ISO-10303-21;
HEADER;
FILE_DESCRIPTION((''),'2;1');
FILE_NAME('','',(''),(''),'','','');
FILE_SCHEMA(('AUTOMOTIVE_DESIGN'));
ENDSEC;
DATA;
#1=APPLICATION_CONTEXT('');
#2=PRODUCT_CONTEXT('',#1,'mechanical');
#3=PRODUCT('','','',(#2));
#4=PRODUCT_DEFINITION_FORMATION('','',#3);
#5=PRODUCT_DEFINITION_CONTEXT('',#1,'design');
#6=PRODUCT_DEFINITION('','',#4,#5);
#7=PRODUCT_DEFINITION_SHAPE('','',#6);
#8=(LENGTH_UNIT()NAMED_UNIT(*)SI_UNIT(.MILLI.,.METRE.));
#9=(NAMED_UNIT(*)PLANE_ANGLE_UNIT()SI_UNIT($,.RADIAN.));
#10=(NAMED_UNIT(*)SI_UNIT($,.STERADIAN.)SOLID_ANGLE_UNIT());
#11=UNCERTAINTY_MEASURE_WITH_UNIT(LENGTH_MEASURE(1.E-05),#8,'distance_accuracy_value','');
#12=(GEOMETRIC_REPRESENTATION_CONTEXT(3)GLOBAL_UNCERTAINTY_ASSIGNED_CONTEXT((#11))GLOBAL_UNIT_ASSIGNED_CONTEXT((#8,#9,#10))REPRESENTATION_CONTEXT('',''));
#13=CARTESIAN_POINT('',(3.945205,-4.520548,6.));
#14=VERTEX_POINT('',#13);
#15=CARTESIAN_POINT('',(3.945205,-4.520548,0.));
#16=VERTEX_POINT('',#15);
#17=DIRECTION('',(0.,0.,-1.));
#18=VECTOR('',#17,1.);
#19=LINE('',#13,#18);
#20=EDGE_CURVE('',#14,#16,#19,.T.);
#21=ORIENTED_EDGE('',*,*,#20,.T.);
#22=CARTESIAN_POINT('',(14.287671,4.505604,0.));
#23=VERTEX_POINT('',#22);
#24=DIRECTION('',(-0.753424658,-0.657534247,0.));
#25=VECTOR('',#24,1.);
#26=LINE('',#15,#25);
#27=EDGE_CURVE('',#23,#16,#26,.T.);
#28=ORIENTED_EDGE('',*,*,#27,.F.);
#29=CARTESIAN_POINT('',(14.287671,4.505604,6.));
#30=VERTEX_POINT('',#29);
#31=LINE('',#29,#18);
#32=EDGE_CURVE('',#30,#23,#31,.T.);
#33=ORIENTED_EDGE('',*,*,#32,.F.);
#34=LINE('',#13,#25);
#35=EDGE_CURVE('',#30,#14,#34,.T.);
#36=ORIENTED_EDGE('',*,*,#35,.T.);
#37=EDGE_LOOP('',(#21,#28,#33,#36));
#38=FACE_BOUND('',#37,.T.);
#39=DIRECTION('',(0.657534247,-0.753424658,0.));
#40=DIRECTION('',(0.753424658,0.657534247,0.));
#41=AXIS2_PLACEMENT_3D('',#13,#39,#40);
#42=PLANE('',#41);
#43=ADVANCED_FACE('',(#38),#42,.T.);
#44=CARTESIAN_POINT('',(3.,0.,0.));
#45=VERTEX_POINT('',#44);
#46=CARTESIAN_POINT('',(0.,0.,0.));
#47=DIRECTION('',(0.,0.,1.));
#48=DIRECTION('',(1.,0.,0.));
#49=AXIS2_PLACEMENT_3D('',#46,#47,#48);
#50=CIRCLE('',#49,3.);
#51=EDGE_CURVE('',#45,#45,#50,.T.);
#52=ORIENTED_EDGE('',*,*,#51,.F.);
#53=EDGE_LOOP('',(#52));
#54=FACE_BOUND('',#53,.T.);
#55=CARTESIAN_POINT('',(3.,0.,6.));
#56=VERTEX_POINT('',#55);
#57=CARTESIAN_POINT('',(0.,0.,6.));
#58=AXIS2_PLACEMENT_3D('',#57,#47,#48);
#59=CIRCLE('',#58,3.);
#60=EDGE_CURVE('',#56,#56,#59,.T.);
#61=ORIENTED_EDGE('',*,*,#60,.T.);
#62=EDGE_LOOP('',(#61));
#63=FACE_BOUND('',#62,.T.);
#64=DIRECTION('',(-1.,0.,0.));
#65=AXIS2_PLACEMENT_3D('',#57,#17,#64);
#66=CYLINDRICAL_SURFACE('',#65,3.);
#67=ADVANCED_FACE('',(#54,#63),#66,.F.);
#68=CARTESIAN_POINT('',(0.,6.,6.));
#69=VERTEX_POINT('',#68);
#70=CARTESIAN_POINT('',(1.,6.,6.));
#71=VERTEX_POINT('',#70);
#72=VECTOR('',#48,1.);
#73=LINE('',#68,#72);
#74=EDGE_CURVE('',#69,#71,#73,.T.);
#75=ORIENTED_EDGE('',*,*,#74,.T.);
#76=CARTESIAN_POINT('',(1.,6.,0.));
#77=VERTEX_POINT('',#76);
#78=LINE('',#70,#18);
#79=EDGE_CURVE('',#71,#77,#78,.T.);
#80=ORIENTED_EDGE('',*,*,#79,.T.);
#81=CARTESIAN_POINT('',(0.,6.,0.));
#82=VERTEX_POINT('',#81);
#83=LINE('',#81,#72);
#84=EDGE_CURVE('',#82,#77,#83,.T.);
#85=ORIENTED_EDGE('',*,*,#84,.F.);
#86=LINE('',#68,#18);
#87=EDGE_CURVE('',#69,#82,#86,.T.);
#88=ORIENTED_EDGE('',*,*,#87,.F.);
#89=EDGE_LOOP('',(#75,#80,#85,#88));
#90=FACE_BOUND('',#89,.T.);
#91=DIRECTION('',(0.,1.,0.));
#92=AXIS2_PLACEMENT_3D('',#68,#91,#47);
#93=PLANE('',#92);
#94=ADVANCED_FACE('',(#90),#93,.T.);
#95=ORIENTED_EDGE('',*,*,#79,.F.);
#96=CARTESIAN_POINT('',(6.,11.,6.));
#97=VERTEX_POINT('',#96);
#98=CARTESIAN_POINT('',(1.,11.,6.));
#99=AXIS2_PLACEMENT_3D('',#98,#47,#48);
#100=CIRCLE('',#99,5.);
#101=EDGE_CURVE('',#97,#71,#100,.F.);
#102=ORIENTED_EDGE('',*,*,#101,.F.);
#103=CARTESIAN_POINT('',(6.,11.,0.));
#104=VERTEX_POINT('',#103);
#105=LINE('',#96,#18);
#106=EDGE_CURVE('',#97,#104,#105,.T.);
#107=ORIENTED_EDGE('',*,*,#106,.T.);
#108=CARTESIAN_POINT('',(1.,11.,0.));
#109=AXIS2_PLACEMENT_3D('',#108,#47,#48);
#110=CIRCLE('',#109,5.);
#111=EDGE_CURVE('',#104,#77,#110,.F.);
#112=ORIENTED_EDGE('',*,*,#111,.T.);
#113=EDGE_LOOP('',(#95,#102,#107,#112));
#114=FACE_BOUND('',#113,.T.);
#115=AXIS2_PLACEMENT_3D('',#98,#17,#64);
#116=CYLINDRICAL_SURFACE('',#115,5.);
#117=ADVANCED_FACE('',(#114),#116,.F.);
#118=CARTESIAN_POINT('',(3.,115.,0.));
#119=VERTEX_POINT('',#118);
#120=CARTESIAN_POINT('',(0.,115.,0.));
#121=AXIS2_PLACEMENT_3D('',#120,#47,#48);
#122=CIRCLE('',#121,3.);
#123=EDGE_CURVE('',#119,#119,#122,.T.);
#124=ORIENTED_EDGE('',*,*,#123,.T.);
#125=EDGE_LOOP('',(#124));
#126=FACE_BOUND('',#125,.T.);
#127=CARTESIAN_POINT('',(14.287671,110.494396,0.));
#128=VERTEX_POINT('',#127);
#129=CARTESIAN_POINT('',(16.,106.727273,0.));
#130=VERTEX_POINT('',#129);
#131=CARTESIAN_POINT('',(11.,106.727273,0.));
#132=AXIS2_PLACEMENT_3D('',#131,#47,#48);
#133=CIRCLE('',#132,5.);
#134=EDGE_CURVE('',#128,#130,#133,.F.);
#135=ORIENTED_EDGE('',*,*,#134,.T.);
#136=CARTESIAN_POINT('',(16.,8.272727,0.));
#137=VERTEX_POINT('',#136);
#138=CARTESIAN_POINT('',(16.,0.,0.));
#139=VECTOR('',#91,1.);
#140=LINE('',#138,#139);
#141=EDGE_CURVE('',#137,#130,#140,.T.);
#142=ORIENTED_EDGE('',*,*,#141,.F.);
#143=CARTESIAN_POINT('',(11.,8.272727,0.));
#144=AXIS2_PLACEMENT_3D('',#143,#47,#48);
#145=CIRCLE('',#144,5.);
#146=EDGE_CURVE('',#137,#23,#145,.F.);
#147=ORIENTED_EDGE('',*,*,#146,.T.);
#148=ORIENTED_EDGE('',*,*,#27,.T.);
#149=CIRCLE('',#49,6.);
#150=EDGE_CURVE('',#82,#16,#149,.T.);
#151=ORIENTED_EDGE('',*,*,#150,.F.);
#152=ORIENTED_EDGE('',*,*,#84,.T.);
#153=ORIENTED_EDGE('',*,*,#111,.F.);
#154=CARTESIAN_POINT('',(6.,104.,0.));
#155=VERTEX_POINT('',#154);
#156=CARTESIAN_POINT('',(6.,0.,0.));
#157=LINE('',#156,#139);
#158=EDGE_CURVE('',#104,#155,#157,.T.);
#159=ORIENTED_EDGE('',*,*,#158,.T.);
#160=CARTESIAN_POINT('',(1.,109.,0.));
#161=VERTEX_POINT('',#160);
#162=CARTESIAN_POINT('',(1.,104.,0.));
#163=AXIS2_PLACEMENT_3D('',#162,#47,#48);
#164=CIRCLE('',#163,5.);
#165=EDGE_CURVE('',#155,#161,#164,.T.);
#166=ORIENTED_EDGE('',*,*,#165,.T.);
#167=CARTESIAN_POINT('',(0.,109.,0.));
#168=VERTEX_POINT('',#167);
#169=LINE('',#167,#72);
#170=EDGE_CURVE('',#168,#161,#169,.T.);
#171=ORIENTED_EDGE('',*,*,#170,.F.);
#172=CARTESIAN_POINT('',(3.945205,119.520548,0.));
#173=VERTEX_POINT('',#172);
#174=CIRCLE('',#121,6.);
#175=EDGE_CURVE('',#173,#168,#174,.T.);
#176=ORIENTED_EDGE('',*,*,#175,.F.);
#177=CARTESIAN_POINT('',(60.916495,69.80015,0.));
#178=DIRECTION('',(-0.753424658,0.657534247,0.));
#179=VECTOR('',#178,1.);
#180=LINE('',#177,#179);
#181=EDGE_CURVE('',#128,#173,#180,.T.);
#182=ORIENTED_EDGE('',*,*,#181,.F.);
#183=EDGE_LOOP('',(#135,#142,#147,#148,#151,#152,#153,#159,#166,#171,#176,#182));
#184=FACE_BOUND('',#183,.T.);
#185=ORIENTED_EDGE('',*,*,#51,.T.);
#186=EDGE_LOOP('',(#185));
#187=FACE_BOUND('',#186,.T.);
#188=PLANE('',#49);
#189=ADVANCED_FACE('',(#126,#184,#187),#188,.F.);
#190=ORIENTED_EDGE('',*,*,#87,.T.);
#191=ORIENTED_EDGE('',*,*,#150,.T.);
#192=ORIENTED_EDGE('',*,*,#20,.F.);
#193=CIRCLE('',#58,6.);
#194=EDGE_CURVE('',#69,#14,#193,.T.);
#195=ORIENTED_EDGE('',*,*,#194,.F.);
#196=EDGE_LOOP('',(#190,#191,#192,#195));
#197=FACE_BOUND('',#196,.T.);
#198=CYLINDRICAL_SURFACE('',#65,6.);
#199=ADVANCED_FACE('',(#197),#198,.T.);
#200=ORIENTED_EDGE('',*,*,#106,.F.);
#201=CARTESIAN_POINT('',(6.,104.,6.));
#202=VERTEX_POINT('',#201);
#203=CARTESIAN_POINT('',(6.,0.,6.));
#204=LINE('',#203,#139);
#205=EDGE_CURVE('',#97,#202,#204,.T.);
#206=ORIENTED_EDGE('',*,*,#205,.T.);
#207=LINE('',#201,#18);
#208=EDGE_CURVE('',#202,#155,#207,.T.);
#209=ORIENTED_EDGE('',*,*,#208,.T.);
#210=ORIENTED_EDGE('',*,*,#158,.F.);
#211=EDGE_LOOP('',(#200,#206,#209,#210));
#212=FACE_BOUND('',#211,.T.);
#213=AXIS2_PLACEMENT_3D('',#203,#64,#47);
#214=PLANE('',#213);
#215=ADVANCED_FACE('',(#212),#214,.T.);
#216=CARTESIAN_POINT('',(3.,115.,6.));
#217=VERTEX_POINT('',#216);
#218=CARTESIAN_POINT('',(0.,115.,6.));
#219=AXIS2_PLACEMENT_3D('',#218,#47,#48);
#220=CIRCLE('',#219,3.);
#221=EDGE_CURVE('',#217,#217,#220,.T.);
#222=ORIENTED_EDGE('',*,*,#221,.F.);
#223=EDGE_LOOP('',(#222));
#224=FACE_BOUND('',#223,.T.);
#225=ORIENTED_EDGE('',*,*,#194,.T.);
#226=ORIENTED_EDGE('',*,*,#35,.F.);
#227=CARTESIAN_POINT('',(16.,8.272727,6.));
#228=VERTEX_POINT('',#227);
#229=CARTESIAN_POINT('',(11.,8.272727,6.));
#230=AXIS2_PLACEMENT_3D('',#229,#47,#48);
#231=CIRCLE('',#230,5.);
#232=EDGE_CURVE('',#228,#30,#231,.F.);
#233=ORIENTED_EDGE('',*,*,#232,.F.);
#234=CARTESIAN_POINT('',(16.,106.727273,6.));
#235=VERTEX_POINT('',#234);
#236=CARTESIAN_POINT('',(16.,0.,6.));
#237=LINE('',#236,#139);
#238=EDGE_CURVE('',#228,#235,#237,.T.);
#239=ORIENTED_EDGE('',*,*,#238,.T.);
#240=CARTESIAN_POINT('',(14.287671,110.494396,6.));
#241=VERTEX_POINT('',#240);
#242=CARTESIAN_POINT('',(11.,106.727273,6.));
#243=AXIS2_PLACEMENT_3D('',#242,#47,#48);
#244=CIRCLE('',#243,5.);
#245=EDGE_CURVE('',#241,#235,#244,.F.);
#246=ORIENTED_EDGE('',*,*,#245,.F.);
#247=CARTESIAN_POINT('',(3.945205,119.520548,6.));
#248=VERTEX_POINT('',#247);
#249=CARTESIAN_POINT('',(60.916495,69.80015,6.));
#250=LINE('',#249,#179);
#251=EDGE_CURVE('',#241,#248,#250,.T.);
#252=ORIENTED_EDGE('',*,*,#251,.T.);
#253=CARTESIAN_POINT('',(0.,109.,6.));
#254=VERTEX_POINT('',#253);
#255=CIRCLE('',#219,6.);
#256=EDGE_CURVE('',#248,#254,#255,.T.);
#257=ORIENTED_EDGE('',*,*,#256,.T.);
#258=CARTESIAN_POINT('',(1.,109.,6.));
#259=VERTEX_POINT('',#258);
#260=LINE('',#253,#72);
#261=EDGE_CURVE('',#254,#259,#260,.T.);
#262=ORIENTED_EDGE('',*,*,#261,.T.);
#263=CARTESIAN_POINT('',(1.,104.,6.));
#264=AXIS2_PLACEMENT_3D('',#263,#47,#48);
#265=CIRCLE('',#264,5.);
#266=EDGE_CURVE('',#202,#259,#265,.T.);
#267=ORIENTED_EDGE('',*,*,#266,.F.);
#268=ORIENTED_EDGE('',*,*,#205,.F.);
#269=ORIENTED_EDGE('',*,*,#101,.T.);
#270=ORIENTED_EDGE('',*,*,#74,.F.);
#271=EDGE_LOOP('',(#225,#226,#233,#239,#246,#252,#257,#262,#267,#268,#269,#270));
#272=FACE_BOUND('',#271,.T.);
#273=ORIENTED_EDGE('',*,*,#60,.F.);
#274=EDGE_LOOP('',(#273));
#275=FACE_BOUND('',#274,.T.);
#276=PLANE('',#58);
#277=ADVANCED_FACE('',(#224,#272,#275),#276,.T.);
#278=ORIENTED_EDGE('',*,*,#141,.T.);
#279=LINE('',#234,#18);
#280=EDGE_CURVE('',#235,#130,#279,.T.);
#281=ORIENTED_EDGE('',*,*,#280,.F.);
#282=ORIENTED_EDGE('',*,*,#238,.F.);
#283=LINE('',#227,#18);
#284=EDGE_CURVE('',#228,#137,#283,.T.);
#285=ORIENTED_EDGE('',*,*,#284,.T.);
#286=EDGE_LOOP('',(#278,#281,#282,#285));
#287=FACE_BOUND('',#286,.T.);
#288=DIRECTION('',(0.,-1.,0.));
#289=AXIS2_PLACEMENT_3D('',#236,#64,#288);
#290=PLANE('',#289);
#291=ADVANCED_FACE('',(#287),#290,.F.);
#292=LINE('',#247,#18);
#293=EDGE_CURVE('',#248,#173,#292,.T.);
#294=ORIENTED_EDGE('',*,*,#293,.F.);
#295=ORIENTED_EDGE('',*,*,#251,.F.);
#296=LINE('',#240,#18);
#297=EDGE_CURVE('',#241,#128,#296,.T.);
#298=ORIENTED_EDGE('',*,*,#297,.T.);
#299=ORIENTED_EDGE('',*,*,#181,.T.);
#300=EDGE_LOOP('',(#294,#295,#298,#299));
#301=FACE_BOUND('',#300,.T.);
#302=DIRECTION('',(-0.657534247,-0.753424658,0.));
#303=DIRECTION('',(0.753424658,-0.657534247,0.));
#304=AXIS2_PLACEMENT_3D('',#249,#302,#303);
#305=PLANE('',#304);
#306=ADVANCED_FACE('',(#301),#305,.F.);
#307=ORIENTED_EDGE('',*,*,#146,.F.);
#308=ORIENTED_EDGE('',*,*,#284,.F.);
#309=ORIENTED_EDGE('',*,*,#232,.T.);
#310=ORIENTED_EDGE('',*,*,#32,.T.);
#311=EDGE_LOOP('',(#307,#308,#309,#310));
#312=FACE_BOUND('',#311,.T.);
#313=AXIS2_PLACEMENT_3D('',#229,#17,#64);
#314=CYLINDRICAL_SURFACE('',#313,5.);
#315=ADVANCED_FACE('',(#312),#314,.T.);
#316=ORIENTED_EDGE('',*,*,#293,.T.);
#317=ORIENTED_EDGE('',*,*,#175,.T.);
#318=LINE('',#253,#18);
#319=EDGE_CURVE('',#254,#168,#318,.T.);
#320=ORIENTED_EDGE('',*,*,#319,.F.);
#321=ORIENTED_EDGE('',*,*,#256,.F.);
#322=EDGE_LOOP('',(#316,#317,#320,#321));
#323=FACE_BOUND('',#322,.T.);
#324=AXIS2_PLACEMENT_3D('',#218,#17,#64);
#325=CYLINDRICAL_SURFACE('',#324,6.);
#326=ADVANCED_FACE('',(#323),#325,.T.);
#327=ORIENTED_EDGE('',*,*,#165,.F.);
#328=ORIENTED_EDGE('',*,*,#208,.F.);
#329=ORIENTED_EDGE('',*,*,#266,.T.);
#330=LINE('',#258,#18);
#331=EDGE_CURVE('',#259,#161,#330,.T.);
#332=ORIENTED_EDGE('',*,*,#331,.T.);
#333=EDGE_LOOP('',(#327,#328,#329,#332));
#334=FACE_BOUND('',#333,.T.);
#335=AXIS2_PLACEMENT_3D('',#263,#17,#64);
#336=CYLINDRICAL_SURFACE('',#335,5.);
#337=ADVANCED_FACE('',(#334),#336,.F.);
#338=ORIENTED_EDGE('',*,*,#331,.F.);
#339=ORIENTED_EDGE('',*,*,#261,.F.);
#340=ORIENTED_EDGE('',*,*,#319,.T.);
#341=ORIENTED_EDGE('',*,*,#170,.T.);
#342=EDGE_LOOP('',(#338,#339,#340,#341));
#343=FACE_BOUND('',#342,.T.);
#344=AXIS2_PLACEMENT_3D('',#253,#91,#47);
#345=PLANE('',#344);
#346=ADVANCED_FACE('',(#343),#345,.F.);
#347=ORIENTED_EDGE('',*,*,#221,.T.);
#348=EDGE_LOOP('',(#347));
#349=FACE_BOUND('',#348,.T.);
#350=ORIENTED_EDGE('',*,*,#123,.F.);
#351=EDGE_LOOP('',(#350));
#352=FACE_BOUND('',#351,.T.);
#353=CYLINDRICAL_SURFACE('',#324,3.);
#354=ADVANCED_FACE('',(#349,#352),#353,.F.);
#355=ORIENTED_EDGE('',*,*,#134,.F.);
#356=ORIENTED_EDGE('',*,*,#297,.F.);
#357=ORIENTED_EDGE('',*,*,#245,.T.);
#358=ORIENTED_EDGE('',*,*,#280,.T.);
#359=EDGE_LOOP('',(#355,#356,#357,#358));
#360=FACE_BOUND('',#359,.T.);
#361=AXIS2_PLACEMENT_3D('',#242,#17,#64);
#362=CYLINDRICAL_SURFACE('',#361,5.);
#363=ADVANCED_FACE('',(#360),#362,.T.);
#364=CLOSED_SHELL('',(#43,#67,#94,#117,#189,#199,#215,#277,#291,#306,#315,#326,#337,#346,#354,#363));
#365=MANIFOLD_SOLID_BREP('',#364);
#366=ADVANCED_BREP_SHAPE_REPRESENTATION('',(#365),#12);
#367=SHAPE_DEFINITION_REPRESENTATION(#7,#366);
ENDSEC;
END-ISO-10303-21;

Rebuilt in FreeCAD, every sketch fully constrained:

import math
import FreeCAD as App
import Part
import Sketcher

V = App.Vector

doc = App.newDocument("Part")
body = doc.addObject("PartDesign::Body", "Body")

# Sketch on XY plane
sketch1 = doc.addObject("Sketcher::SketchObject", "Sketch")
body.addObject(sketch1)
sketch1.AttachmentSupport = (doc.XY_Plane, [""])
sketch1.MapMode = "FlatFace"
sketch1.addGeometry(Part.ArcOfCircle(Part.Circle(V(0, 0, 0), V(0, 0, 1), 6), math.radians(-90), math.radians(-48.88791)), False)
sketch1.addGeometry(Part.LineSegment(V(3.945205, -4.520548, 0), V(14.287671, 4.505604, 0)), False)
sketch1.addGeometry(Part.ArcOfCircle(Part.Circle(V(11, 8.272727, 0), V(0, 0, 1), 5), math.radians(-48.88791), math.radians(0)), False)
sketch1.addGeometry(Part.LineSegment(V(16, 8.272727, 0), V(16, 106.727273, 0)), False)
sketch1.addGeometry(Part.ArcOfCircle(Part.Circle(V(11, 106.727273, 0), V(0, 0, 1), 5), math.radians(0), math.radians(48.88791)), False)
sketch1.addGeometry(Part.LineSegment(V(14.287671, 110.494396, 0), V(3.945205, 119.520548, 0)), False)
sketch1.addGeometry(Part.ArcOfCircle(Part.Circle(V(0, 115, 0), V(0, 0, 1), 6), math.radians(48.88791), math.radians(270)), False)
sketch1.addGeometry(Part.LineSegment(V(0, 109, 0), V(1, 109, 0)), False)
sketch1.addGeometry(Part.ArcOfCircle(Part.Circle(V(1, 104, 0), V(0, 0, 1), 5), math.radians(0), math.radians(90)), False)
sketch1.addGeometry(Part.LineSegment(V(6, 104, 0), V(6, 11, 0)), False)
sketch1.addGeometry(Part.ArcOfCircle(Part.Circle(V(1, 11, 0), V(0, 0, 1), 5), math.radians(-90), math.radians(0)), False)
sketch1.addGeometry(Part.LineSegment(V(1, 6, 0), V(0, 6, 0)), False)
sketch1.addGeometry(Part.ArcOfCircle(Part.Circle(V(0, 0, 0), V(0, 0, 1), 6), math.radians(90), math.radians(180)), False)
sketch1.addGeometry(Part.ArcOfCircle(Part.Circle(V(0, 0, 0), V(0, 0, 1), 6), math.radians(180), math.radians(270)), False)
sketch1.addGeometry(Part.Circle(V(0, 0, 0), V(0, 0, 1), 3), False)
sketch1.addGeometry(Part.Circle(V(0, 115, 0), V(0, 0, 1), 3), False)
sketch1.addConstraint(Sketcher.Constraint("Tangent", 0, 2, 1, 1))
sketch1.addConstraint(Sketcher.Constraint("Tangent", 1, 2, 2, 1))
sketch1.addConstraint(Sketcher.Constraint("Tangent", 2, 2, 3, 1))
sketch1.addConstraint(Sketcher.Constraint("Tangent", 3, 2, 4, 1))
sketch1.addConstraint(Sketcher.Constraint("Tangent", 4, 2, 5, 1))
sketch1.addConstraint(Sketcher.Constraint("Tangent", 5, 2, 6, 1))
sketch1.addConstraint(Sketcher.Constraint("Tangent", 6, 2, 7, 1))
sketch1.addConstraint(Sketcher.Constraint("Tangent", 7, 2, 8, 2))
sketch1.addConstraint(Sketcher.Constraint("Tangent", 8, 1, 9, 1))
sketch1.addConstraint(Sketcher.Constraint("Tangent", 9, 2, 10, 2))
sketch1.addConstraint(Sketcher.Constraint("Tangent", 10, 1, 11, 1))
sketch1.addConstraint(Sketcher.Constraint("Tangent", 11, 2, 12, 1))
sketch1.addConstraint(Sketcher.Constraint("Tangent", 12, 2, 13, 1))
sketch1.addConstraint(Sketcher.Constraint("Tangent", 13, 2, 0, 1))
sketch1.addConstraint(Sketcher.Constraint("Vertical", 3))
sketch1.addConstraint(Sketcher.Constraint("Horizontal", 7))
sketch1.addConstraint(Sketcher.Constraint("Vertical", 9))
sketch1.addConstraint(Sketcher.Constraint("Horizontal", 11))
sketch1.addConstraint(Sketcher.Constraint("Coincident", 0, 3, -1, 1))
sketch1.addConstraint(Sketcher.Constraint("Coincident", 12, 3, -1, 1))
sketch1.addConstraint(Sketcher.Constraint("Coincident", 14, 3, -1, 1))
sketch1.addConstraint(Sketcher.Constraint("Coincident", 15, 3, 6, 3))
sketch1.addConstraint(Sketcher.Constraint("Equal", 2, 4))
sketch1.addConstraint(Sketcher.Constraint("Equal", 0, 6))
sketch1.addConstraint(Sketcher.Constraint("Equal", 4, 8))
sketch1.addConstraint(Sketcher.Constraint("Equal", 8, 10))
sketch1.addConstraint(Sketcher.Constraint("Equal", 14, 15))
sketch1.addConstraint(Sketcher.Constraint("PointOnObject", 6, 3, -2))
sketch1.addConstraint(Sketcher.Constraint("PointOnObject", 12, 2, -1))
sketch1.addConstraint(Sketcher.Constraint("PointOnObject", 13, 2, -2))
sketch1.addConstraint(Sketcher.Constraint("Vertical", 1, 2, 4, 2))
sketch1.addConstraint(Sketcher.Constraint("Diameter", 14, 6.0))
sketch1.addConstraint(Sketcher.Constraint("Radius", 0, 6.0))
sketch1.addConstraint(Sketcher.Constraint("Radius", 2, 5.0))
sketch1.addConstraint(Sketcher.Constraint("DistanceX", 7, 1, 7, 2, 1.0))
sketch1.addConstraint(Sketcher.Constraint("DistanceY", 9, 2, 9, 1, 93.0))
sketch1.addConstraint(Sketcher.Constraint("DistanceX", -1, 1, 2, 3, 11.0))
sketch1.addConstraint(Sketcher.Constraint("DistanceY", 3, 1, 3, 2, 98.454545))
pad1 = doc.addObject("PartDesign::Pad", "Pad")
body.addObject(pad1)
pad1.Profile = sketch1
pad1.Length = 6

doc.recompute()
